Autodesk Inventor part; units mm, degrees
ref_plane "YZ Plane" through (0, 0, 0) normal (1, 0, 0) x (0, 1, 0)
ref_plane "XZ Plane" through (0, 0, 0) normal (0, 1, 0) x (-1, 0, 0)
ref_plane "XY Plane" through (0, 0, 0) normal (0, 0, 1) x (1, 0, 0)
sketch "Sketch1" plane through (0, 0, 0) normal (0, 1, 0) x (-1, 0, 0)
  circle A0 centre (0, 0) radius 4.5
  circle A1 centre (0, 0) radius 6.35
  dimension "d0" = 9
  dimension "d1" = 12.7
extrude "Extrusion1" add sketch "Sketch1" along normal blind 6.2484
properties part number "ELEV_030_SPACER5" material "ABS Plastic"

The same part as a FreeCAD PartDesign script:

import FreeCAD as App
import Part
import Sketcher
Q = App.Units.Quantity

doc = App.newDocument("Part")
body = doc.addObject("PartDesign::Body", "Body")

sketch1 = body.newObject("Sketcher::SketchObject", "Sketch")
sketch1.AttachmentSupport = (doc.getObject("XZ_Plane"), [""])
sketch1.MapMode = "FlatFace"
sketch1.addGeometry([
    Part.Circle(App.Vector(0, 0, 0), App.Vector(0, 0, 1), 6.3),
    Part.Circle(App.Vector(0, 0, 0), App.Vector(0, 0, 1), 4.5),
], False)
sketch1.addConstraint([
    Sketcher.Constraint("Coincident", 0, 3, -1, 1),
    Sketcher.Constraint("Coincident", 1, 3, -1, 1),
    Sketcher.Constraint("Diameter", 0, Q("0.5 in")),
    Sketcher.Constraint("Diameter", 1, 9.0),
])
pad1 = body.newObject("PartDesign::Pad", "Pad")
pad1.Profile = sketch1
pad1.Length = Q("0.246 in")
pad1.Reversed = True

doc.recompute()
